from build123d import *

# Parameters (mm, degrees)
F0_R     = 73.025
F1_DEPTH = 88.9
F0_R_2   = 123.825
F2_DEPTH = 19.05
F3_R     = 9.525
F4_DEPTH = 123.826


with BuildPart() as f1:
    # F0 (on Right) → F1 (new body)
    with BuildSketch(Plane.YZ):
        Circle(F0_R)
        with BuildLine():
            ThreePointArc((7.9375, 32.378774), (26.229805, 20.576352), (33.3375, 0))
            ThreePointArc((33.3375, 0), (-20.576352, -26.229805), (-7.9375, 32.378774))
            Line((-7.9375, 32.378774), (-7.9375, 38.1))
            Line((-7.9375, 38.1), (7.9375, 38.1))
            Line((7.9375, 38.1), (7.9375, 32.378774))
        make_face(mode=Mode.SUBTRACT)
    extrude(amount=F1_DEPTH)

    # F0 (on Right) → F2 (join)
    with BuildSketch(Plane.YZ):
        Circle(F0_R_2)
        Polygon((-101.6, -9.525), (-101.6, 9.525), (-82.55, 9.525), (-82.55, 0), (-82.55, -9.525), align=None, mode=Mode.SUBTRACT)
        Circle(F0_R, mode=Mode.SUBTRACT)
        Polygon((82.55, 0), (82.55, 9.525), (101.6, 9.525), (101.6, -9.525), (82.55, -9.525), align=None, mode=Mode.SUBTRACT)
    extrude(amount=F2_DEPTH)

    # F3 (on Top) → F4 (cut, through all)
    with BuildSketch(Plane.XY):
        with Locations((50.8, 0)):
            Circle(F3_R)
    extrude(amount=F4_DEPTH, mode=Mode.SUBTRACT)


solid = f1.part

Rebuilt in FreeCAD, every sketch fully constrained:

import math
import FreeCAD as App
import Part
import Sketcher
Q = App.Units.Quantity


def add_polygon(sketch, points):
    """Adds a closed chain of lines whose ends are joined by coincident constraints."""
    first, n = sketch.GeometryCount, len(points)
    for a, b in zip(points, points[1:] + points[:1]):
        sketch.addGeometry(Part.LineSegment(App.Vector(*a, 0), App.Vector(*b, 0)), False)
    for i in range(n):
        sketch.addConstraint(Sketcher.Constraint("Coincident", first + i, 2, first + (i + 1) % n, 1))

doc = App.newDocument("Part")
body = doc.addObject("PartDesign::Body", "Body")

# Sketch on YZ plane
sketch1 = doc.addObject("Sketcher::SketchObject", "Sketch")
body.addObject(sketch1)
sketch1.AttachmentSupport = (doc.YZ_Plane, [""])
sketch1.MapMode = "FlatFace"
sketch1.addGeometry([
    Part.Circle(App.Vector(0, 0, 0), App.Vector(0, 0, 1), 73),  # 0
    Part.LineSegment(App.Vector(8, 38, 0), App.Vector(8, 32, 0)),  # 1
    Part.ArcOfCircle(Part.Circle(App.Vector(0, 0, 0), App.Vector(0, 0, 1), 33), math.radians(0), math.radians(76)),  # 2
    Part.ArcOfCircle(Part.Circle(App.Vector(0, 0, 0), App.Vector(0, 0, 1), 33), math.radians(104), math.radians(360)),  # 3
    Part.LineSegment(App.Vector(-8, 32, 0), App.Vector(-8, 38, 0)),  # 4
    Part.LineSegment(App.Vector(-8, 38, 0), App.Vector(8, 38, 0)),  # 5
], False)
sketch1.addConstraint([
    Sketcher.Constraint("Coincident", 1, 2, 2, 2),
    Sketcher.Constraint("Tangent", 2, 1, 3, 2),
    Sketcher.Constraint("Coincident", 3, 1, 4, 1),
    Sketcher.Constraint("Coincident", 4, 2, 5, 1),
    Sketcher.Constraint("Coincident", 5, 2, 1, 1),
    Sketcher.Constraint("Vertical", 1),
    Sketcher.Constraint("Vertical", 4),
    Sketcher.Constraint("Horizontal", 5),
    Sketcher.Constraint("Coincident", 0, 3, -1, 1),
    Sketcher.Constraint("Coincident", 2, 3, -1, 1),
    Sketcher.Constraint("Equal", 2, 3),
    Sketcher.Constraint("PointOnObject", 2, 1, -1),
    Sketcher.Constraint("Horizontal", 1, 2, 3, 1),
    Sketcher.Constraint("Diameter", 0, Q("5.75 in")),
    Sketcher.Constraint("Radius", 2, Q("1.3125 in")),
    Sketcher.Constraint("DistanceX", 1, 2, 2, 1, Q("1 in")),
    Sketcher.Constraint("DistanceY", -1, 1, 4, 2, Q("1.5 in")),
])
pad1 = doc.addObject("PartDesign::Pad", "Pad")
body.addObject(pad1)
pad1.Profile = sketch1
pad1.Length = Q("3.5 in")

# Sketch on YZ plane
sketch2 = doc.addObject("Sketcher::SketchObject", "Sketch001")
body.addObject(sketch2)
sketch2.AttachmentSupport = (doc.YZ_Plane, [""])
sketch2.MapMode = "FlatFace"
sketch2.addGeometry(Part.Circle(App.Vector(0, 0, 0), App.Vector(0, 0, 1), 124), False)  # 0
add_polygon(sketch2, [(-83, -10), (-102, -10), (-102, 10), (-83, 10)])  # lines 1-4
sketch2.addGeometry(Part.Circle(App.Vector(0, 0, 0), App.Vector(0, 0, 1), 73), False)  # 5
add_polygon(sketch2, [(83, -10), (83, 10), (102, 10), (102, -10)])  # lines 6-9
sketch2.addConstraint([
    Sketcher.Constraint("Horizontal", 1),
    Sketcher.Constraint("Vertical", 2),
    Sketcher.Constraint("Horizontal", 3),
    Sketcher.Constraint("Vertical", 4),
    Sketcher.Constraint("Vertical", 6),
    Sketcher.Constraint("Horizontal", 7),
    Sketcher.Constraint("Vertical", 8),
    Sketcher.Constraint("Horizontal", 9),
    Sketcher.Constraint("Coincident", 0, 3, -1, 1),
    Sketcher.Constraint("Coincident", 5, 3, -1, 1),
    Sketcher.Constraint("Symmetric", 4, 2, 6, 2, -1, 1),
    Sketcher.Constraint("Symmetric", 2, 2, 8, 2, -1, 1),
    Sketcher.Constraint("Horizontal", 3, 2, 6, 2),
    Sketcher.Constraint("Equal", 9, 2),
    Sketcher.Constraint("Diameter", 0, Q("9.75 in")),
    Sketcher.Constraint("Diameter", 5, Q("5.75 in")),
    Sketcher.Constraint("DistanceX", 1, 2, -1, 1, Q("4 in")),
    Sketcher.Constraint("DistanceX", 1, 2, 1, 1, Q("0.75 in")),
])
pad2 = doc.addObject("PartDesign::Pad", "Pad001")
body.addObject(pad2)
pad2.Profile = sketch2
pad2.Length = Q("0.75 in")

# Sketch on XY plane
sketch3 = doc.addObject("Sketcher::SketchObject", "Sketch002")
body.addObject(sketch3)
sketch3.AttachmentSupport = (doc.XY_Plane, [""])
sketch3.MapMode = "FlatFace"
sketch3.addGeometry(Part.Circle(App.Vector(51, 0, 0), App.Vector(0, 0, 1), 10), False)
sketch3.addConstraint([
    Sketcher.Constraint("PointOnObject", 0, 3, -1),
    Sketcher.Constraint("Diameter", 0, Q("0.75 in")),
    Sketcher.Constraint("DistanceX", -1, 1, 0, 3, Q("2 in")),
])
pocket1 = doc.addObject("PartDesign::Pocket", "Pocket")
body.addObject(pocket1)
pocket1.Profile = sketch3
pocket1.Type = "ThroughAll"
pocket1.Reversed = True

doc.recompute()
